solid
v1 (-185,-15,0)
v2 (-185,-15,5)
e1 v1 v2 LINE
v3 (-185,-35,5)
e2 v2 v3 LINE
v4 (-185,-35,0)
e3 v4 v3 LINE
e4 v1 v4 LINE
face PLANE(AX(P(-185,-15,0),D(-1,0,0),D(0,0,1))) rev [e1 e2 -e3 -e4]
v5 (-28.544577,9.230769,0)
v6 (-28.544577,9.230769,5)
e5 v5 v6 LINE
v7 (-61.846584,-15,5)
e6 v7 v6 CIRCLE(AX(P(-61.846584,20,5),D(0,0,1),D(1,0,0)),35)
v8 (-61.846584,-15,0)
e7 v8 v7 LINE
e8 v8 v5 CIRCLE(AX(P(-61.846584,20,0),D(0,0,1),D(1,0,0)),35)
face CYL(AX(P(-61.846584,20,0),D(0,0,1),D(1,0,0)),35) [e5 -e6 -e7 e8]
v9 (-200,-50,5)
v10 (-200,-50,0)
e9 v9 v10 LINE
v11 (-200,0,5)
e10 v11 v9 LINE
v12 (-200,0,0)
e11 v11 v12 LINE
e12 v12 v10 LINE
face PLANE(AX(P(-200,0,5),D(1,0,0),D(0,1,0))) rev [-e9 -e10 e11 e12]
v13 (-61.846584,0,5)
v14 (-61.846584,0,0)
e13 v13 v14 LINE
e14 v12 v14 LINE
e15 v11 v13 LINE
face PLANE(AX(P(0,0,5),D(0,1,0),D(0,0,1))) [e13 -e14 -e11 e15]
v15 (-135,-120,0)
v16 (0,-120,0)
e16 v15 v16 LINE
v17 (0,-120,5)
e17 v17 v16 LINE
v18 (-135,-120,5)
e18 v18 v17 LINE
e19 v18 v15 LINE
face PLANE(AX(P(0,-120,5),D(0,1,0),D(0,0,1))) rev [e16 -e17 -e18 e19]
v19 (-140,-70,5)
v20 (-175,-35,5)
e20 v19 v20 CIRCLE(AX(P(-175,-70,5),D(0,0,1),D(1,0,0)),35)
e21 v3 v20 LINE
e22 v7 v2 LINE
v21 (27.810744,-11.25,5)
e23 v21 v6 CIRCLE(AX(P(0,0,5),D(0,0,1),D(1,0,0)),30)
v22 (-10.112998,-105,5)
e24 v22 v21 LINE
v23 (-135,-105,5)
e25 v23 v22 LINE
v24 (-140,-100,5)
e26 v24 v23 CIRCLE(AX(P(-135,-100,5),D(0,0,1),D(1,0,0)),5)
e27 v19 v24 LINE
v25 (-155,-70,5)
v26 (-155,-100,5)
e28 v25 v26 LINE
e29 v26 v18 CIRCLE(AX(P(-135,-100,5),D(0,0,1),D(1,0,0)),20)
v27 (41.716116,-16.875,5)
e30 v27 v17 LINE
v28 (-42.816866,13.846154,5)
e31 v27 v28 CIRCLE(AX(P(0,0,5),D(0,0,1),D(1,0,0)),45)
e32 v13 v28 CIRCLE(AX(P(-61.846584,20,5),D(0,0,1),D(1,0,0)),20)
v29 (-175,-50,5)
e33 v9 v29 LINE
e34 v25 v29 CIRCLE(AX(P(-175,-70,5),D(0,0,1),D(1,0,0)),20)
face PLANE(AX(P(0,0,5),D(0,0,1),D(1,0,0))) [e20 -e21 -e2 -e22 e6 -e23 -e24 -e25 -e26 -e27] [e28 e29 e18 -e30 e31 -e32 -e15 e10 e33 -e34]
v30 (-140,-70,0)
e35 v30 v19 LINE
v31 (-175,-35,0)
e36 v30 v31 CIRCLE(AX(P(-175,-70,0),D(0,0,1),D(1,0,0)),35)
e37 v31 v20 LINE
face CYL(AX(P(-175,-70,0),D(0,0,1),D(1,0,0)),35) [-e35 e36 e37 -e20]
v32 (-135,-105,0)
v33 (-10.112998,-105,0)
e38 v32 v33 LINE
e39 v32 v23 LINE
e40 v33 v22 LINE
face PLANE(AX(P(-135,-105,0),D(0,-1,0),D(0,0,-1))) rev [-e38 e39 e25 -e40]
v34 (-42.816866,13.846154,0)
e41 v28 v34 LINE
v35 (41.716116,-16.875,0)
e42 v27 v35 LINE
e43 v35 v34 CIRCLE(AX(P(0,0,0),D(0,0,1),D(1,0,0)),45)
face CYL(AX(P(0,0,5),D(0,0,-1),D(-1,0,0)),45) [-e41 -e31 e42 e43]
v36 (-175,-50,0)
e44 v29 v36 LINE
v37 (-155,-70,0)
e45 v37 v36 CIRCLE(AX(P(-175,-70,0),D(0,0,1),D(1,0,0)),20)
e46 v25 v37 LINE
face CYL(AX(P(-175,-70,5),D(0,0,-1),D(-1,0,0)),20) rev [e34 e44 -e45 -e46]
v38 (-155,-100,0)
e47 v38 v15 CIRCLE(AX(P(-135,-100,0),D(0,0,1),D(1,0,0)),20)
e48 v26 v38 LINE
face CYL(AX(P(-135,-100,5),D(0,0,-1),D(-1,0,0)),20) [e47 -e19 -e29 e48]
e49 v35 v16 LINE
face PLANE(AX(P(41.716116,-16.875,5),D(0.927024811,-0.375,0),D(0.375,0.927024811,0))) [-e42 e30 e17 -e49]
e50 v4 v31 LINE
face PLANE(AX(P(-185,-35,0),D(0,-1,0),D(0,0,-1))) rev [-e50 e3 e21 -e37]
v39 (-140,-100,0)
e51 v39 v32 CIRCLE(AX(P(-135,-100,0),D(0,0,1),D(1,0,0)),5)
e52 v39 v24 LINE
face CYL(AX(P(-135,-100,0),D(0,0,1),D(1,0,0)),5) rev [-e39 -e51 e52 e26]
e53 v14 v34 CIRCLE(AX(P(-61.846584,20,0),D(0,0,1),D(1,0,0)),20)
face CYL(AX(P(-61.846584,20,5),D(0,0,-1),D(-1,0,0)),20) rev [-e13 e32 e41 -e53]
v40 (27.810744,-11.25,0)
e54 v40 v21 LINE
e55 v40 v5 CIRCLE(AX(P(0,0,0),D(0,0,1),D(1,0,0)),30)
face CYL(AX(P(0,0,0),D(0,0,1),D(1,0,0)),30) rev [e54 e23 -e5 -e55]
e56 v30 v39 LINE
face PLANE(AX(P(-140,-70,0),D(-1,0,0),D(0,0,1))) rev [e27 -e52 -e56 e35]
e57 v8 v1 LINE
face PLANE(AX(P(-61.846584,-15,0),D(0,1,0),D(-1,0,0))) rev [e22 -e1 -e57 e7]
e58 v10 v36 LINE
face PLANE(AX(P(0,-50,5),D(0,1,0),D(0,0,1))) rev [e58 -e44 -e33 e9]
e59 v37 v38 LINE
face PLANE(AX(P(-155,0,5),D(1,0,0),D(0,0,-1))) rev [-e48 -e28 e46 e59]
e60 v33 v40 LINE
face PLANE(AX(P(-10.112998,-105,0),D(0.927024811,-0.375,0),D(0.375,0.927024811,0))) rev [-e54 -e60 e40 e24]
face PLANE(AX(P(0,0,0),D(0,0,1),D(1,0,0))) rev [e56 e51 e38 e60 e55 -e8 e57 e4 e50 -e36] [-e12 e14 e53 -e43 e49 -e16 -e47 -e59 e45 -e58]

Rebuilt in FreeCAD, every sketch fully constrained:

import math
import FreeCAD as App
import Part
import Sketcher

V = App.Vector

doc = App.newDocument("Part")
body = doc.addObject("PartDesign::Body", "Body")

sketch1 = body.newObject("Sketcher::SketchObject", "Sketch")
sketch1.AttachmentSupport = (doc.getObject("XY_Plane"), [""])
sketch1.MapMode = "FlatFace"
sketch1.addGeometry(Part.LineSegment(V(-135, -120, 0), V(0, -120, 0)), False)
sketch1.addGeometry(Part.LineSegment(V(0, -120, 0), V(42, -17, 0)), False)
sketch1.addGeometry(Part.ArcOfCircle(Part.Circle(V(0, 0, 0), V(0, 0, 1), 45), math.radians(-22), math.radians(0)), False)
sketch1.addGeometry(Part.ArcOfCircle(Part.Circle(V(0, 0, 0), V(0, 0, 1), 45), math.radians(0), math.radians(162)), False)
sketch1.addGeometry(Part.ArcOfCircle(Part.Circle(V(-62, 20, 0), V(0, 0, 1), 20), math.radians(-90), math.radians(-18)), False)
sketch1.addGeometry(Part.LineSegment(V(-62, 0, 0), V(-200, 0, 0)), False)
sketch1.addGeometry(Part.LineSegment(V(-200, 0, 0), V(-200, -50, 0)), False)
sketch1.addGeometry(Part.LineSegment(V(-200, -50, 0), V(-175, -50, 0)), False)
sketch1.addGeometry(Part.ArcOfCircle(Part.Circle(V(-175, -70, 0), V(0, 0, 1), 20), math.radians(0), math.radians(90)), False)
sketch1.addGeometry(Part.LineSegment(V(-155, -70, 0), V(-155, -100, 0)), False)
sketch1.addGeometry(Part.ArcOfCircle(Part.Circle(V(-135, -100, 0), V(0, 0, 1), 20), math.radians(180), math.radians(270)), False)
sketch1.addConstraint(Sketcher.Constraint("Coincident", 0, 2, 1, 1))
sketch1.addConstraint(Sketcher.Constraint("Tangent", 1, 2, 2, 1))
sketch1.addConstraint(Sketcher.Constraint("Tangent", 2, 2, 3, 1))
sketch1.addConstraint(Sketcher.Constraint("Tangent", 3, 2, 4, 2))
sketch1.addConstraint(Sketcher.Constraint("Tangent", 4, 1, 5, 1))
sketch1.addConstraint(Sketcher.Constraint("Coincident", 5, 2, 6, 1))
sketch1.addConstraint(Sketcher.Constraint("Coincident", 6, 2, 7, 1))
sketch1.addConstraint(Sketcher.Constraint("Tangent", 7, 2, 8, 2))
sketch1.addConstraint(Sketcher.Constraint("Tangent", 8, 1, 9, 1))
sketch1.addConstraint(Sketcher.Constraint("Tangent", 9, 2, 10, 1))
sketch1.addConstraint(Sketcher.Constraint("Tangent", 10, 2, 0, 1))
sketch1.addConstraint(Sketcher.Constraint("Horizontal", 0))
sketch1.addConstraint(Sketcher.Constraint("Horizontal", 5))
sketch1.addConstraint(Sketcher.Constraint("Vertical", 6))
sketch1.addConstraint(Sketcher.Constraint("Horizontal", 7))
sketch1.addConstraint(Sketcher.Constraint("Vertical", 9))
sketch1.addConstraint(Sketcher.Constraint("Coincident", 2, 3, -1, 1))
sketch1.addConstraint(Sketcher.Constraint("Equal", 2, 3))
sketch1.addConstraint(Sketcher.Constraint("Equal", 4, 8))
sketch1.addConstraint(Sketcher.Constraint("Equal", 8, 10))
sketch1.addConstraint(Sketcher.Constraint("PointOnObject", 0, 2, -2))
sketch1.addConstraint(Sketcher.Constraint("PointOnObject", 2, 2, -1))
sketch1.addConstraint(Sketcher.Constraint("PointOnObject", 4, 1, -1))
sketch1.addConstraint(Sketcher.Constraint("Radius", 2, 45.0))
sketch1.addConstraint(Sketcher.Constraint("Radius", 4, 20.0))
sketch1.addConstraint(Sketcher.Constraint("DistanceX", 0, 1, 0, 2, 135.0))
sketch1.addConstraint(Sketcher.Constraint("DistanceX", 7, 1, 7, 2, 25.0))
sketch1.addConstraint(Sketcher.Constraint("DistanceY", 6, 2, 6, 1, 50.0))
sketch1.addConstraint(Sketcher.Constraint("DistanceY", 9, 2, 9, 1, 30.0))
pad1 = body.newObject("PartDesign::Pad", "Pad")
pad1.Profile = sketch1
pad1.Length = 5

sketch2 = body.newObject("Sketcher::SketchObject", "Sketch001")
sketch2.AttachmentSupport = (doc.getObject("XY_Plane"), [""])
sketch2.MapMode = "FlatFace"
sketch2.AttachmentOffset = App.Placement(V(0, 0, 5), App.Rotation())
sketch2.addGeometry(Part.LineSegment(V(-62, -15, 0), V(-185, -15, 0)), False)
sketch2.addGeometry(Part.LineSegment(V(-185, -15, 0), V(-185, -35, 0)), False)
sketch2.addGeometry(Part.LineSegment(V(-185, -35, 0), V(-175, -35, 0)), False)
sketch2.addGeometry(Part.ArcOfCircle(Part.Circle(V(-175, -70, 0), V(0, 0, 1), 35), math.radians(0), math.radians(90)), False)
sketch2.addGeometry(Part.LineSegment(V(-140, -70, 0), V(-140, -100, 0)), False)
sketch2.addGeometry(Part.ArcOfCircle(Part.Circle(V(-135, -100, 0), V(0, 0, 1), 5), math.radians(180), math.radians(270)), False)
sketch2.addGeometry(Part.LineSegment(V(-135, -105, 0), V(-10, -105, 0)), False)
sketch2.addGeometry(Part.LineSegment(V(-10, -105, 0), V(28, -11, 0)), False)
sketch2.addGeometry(Part.ArcOfCircle(Part.Circle(V(0, 0, 0), V(0, 0, 1), 30), math.radians(-22), math.radians(162)), False)
sketch2.addGeometry(Part.ArcOfCircle(Part.Circle(V(-62, 20, 0), V(0, 0, 1), 35), math.radians(-90), math.radians(-18)), False)
sketch2.addConstraint(Sketcher.Constraint("Coincident", 0, 2, 1, 1))
sketch2.addConstraint(Sketcher.Constraint("Coincident", 1, 2, 2, 1))
sketch2.addConstraint(Sketcher.Constraint("Tangent", 2, 2, 3, 2))
sketch2.addConstraint(Sketcher.Constraint("Tangent", 3, 1, 4, 1))
sketch2.addConstraint(Sketcher.Constraint("Tangent", 4, 2, 5, 1))
sketch2.addConstraint(Sketcher.Constraint("Tangent", 5, 2, 6, 1))
sketch2.addConstraint(Sketcher.Constraint("Coincident", 6, 2, 7, 1))
sketch2.addConstraint(Sketcher.Constraint("Tangent", 7, 2, 8, 1))
sketch2.addConstraint(Sketcher.Constraint("Tangent", 8, 2, 9, 2))
sketch2.addConstraint(Sketcher.Constraint("Tangent", 9, 1, 0, 1))
sketch2.addConstraint(Sketcher.Constraint("Horizontal", 0))
sketch2.addConstraint(Sketcher.Constraint("Vertical", 1))
sketch2.addConstraint(Sketcher.Constraint("Horizontal", 2))
sketch2.addConstraint(Sketcher.Constraint("Vertical", 4))
sketch2.addConstraint(Sketcher.Constraint("Horizontal", 6))
sketch2.addConstraint(Sketcher.Constraint("Coincident", 8, 3, -1, 1))
sketch2.addConstraint(Sketcher.Constraint("Equal", 3, 9))
sketch2.addConstraint(Sketcher.Constraint("Radius", 3, 35.0))
sketch2.addConstraint(Sketcher.Constraint("Radius", 5, 5.0))
sketch2.addConstraint(Sketcher.Constraint("Radius", 8, 30.0))
sketch2.addConstraint(Sketcher.Constraint("DistanceX", 2, 1, 2, 2, 10.0))
sketch2.addConstraint(Sketcher.Constraint("DistanceY", 1, 2, 1, 1, 20.0))
sketch2.addConstraint(Sketcher.Constraint("DistanceY", 4, 2, 4, 1, 30.0))
sketch2.addConstraint(Sketcher.Constraint("DistanceX", 3, 3, -1, 1, 175.0))
sketch2.addConstraint(Sketcher.Constraint("DistanceY", 3, 3, -1, 1, 70.0))
sketch2.addConstraint(Sketcher.Constraint("DistanceY", 7, 2, -1, 1, 11.25))
pocket1 = body.newObject("PartDesign::Pocket", "Pocket")
pocket1.Profile = sketch2
pocket1.Type = "ThroughAll"

doc.recompute()
